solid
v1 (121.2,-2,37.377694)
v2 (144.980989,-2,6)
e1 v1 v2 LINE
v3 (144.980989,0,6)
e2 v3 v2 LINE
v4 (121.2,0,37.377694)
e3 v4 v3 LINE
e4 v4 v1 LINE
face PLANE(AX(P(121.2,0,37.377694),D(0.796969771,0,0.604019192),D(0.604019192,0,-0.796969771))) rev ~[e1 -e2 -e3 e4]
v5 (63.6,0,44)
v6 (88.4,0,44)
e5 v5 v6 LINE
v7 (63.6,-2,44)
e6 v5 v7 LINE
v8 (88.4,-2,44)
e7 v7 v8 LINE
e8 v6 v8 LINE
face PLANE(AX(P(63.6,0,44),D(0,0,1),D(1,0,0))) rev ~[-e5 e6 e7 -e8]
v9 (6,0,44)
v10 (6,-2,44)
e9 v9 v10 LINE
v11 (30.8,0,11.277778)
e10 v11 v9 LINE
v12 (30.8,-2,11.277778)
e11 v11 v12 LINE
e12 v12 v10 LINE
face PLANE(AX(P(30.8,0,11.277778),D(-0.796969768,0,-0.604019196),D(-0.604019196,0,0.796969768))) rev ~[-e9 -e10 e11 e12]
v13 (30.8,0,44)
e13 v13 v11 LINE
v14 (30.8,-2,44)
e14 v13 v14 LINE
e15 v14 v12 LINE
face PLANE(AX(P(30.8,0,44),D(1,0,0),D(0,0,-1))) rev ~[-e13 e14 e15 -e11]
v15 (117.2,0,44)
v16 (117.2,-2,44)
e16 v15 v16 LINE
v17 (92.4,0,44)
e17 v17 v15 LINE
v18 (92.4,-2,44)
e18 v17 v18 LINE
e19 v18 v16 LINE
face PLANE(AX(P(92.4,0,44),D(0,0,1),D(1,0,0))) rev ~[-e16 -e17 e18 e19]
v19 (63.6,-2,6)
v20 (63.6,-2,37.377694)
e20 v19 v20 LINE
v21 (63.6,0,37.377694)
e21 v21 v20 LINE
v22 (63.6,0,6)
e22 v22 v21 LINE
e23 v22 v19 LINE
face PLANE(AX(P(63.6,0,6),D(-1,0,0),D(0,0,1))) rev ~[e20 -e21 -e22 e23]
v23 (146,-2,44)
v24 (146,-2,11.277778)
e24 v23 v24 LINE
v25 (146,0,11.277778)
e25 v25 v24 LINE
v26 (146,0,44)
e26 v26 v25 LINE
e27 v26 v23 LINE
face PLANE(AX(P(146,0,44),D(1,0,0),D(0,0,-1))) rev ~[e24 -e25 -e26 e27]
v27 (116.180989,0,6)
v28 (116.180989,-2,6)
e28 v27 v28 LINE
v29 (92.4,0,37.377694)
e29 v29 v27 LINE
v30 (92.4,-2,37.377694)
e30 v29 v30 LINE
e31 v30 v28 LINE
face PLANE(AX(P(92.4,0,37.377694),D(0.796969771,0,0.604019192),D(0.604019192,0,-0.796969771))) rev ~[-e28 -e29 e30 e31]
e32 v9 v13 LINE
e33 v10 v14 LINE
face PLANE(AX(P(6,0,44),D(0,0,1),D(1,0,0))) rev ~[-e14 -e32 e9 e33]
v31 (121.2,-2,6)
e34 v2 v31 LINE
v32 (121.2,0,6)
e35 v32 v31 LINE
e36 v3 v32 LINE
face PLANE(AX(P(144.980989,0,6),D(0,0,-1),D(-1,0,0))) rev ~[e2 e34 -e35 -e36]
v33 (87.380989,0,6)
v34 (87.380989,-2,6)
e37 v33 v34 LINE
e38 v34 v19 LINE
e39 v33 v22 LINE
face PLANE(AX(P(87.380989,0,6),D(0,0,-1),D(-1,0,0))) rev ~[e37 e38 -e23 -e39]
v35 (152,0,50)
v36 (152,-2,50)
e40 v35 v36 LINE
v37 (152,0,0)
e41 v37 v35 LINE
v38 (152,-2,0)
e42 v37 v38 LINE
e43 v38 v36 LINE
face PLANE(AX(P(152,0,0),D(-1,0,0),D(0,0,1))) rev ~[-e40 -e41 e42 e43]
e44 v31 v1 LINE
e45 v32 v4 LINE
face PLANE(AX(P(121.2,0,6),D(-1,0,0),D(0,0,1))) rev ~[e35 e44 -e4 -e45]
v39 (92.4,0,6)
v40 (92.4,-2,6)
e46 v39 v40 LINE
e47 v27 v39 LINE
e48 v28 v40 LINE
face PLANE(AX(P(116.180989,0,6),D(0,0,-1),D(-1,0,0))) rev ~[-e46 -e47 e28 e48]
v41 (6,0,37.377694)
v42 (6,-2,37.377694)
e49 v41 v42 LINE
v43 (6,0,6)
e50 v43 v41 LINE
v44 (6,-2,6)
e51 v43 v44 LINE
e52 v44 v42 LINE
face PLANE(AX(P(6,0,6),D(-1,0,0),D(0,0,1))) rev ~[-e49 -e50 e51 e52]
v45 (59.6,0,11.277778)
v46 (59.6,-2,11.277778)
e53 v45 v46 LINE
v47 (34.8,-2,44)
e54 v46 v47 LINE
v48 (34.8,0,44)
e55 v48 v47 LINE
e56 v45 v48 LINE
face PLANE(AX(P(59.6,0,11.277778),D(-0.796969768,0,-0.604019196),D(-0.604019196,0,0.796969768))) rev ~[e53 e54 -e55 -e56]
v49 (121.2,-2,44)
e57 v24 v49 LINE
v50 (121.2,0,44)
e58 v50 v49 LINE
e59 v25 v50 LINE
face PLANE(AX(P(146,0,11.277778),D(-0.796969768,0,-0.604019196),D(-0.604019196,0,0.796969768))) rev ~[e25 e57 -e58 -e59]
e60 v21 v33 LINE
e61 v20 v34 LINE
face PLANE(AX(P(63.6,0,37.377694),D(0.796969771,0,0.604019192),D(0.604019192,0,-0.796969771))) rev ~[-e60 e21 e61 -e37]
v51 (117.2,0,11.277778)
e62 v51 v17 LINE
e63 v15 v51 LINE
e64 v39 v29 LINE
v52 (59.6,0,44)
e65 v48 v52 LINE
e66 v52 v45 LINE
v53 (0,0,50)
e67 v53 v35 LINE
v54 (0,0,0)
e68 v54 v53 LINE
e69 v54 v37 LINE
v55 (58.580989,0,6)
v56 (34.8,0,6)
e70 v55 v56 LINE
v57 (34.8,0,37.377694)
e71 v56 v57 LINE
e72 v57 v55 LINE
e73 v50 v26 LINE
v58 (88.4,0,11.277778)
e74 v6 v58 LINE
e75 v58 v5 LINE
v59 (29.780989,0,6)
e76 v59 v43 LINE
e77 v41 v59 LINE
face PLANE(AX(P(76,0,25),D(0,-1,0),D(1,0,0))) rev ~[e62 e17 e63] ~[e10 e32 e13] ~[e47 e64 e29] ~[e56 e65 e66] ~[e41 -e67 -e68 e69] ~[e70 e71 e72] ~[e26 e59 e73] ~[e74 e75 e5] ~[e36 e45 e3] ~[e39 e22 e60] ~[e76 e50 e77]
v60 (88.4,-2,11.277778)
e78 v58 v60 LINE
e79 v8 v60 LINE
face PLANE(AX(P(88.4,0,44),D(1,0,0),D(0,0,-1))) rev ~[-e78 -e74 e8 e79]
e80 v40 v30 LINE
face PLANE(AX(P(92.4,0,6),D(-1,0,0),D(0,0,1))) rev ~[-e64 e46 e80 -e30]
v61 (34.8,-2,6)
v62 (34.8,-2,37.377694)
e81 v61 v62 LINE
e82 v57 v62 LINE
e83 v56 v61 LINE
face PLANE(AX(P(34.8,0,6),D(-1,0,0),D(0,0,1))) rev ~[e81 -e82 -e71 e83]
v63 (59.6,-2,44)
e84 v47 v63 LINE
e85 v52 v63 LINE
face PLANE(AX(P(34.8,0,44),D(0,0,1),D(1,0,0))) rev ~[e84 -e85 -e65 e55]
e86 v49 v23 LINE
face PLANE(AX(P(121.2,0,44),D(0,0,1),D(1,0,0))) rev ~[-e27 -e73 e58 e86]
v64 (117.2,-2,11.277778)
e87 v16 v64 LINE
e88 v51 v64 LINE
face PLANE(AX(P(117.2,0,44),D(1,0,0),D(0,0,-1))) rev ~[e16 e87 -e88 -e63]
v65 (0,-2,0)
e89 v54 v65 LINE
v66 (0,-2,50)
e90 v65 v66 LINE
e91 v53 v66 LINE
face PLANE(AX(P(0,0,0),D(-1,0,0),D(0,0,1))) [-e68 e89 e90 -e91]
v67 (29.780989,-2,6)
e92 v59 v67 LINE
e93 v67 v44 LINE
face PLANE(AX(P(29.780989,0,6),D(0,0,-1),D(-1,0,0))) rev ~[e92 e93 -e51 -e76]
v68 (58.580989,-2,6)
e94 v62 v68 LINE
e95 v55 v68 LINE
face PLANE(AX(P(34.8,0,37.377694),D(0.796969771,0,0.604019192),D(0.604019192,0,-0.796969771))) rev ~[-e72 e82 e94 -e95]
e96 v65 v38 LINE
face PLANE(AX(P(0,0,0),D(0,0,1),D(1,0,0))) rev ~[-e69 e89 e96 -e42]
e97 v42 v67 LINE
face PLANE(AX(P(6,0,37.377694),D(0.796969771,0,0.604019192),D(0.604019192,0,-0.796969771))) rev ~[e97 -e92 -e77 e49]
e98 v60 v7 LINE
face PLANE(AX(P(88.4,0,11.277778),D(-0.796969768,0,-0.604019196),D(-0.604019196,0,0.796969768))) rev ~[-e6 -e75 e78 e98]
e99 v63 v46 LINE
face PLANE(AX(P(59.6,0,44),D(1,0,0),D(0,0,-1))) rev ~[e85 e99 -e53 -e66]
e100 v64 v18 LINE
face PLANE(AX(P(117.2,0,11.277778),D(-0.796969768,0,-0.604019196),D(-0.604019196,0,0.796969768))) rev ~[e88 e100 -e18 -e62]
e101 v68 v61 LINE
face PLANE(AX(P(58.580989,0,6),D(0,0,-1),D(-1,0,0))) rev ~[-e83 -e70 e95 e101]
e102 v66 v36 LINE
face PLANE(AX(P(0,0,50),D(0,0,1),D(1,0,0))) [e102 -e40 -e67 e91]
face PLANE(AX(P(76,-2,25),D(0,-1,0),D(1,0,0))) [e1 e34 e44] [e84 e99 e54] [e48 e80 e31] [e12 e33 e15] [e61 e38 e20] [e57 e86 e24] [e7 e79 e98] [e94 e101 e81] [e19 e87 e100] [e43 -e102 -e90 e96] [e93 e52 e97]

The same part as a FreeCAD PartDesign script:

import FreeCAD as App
import Part
import Sketcher


def add_polygon(sketch, points):
    """Adds a closed chain of lines whose ends are joined by coincident constraints."""
    first, n = sketch.GeometryCount, len(points)
    for a, b in zip(points, points[1:] + points[:1]):
        sketch.addGeometry(Part.LineSegment(App.Vector(*a, 0), App.Vector(*b, 0)), False)
    for i in range(n):
        sketch.addConstraint(Sketcher.Constraint("Coincident", first + i, 2, first + (i + 1) % n, 1))

doc = App.newDocument("Part")
params = doc.addObject("Spreadsheet::Sheet", "Params")
for row, (alias, value) in enumerate([
    ("sketch1_width", "152 mm"),
    ("sketch1_height", "50 mm"),
    ("sketch1_width2", "24.8 mm"),
    ("pad1_length", "2 mm"),
], start=1):
    params.set(f"A{row}", alias)
    params.set(f"B{row}", "=" + value)
    params.setAlias(f"B{row}", alias)

body = doc.addObject("PartDesign::Body", "Body")

# Sketch on XZ plane
sketch1 = doc.addObject("Sketcher::SketchObject", "Sketch")
body.addObject(sketch1)
sketch1.AttachmentSupport = (doc.XZ_Plane, [""])
sketch1.MapMode = "FlatFace"
add_polygon(sketch1, [(0, 50), (0, 0), (152, 0), (152, 50)])  # lines 0-3
add_polygon(sketch1, [(30.8, 44), (30.8, 11.277778), (6, 44)])  # lines 4-6
add_polygon(sketch1, [(6, 6), (6, 37.377694), (29.780989, 6)])  # lines 7-9
add_polygon(sketch1, [(58.580989, 6), (34.8, 6), (34.8, 37.377694)])  # lines 10-12
add_polygon(sketch1, [(87.380989, 6), (63.6, 6), (63.6, 37.377694)])  # lines 13-15
add_polygon(sketch1, [(116.180989, 6), (92.4, 6), (92.4, 37.377694)])  # lines 16-18
add_polygon(sketch1, [(144.980989, 6), (121.2, 6), (121.2, 37.377694)])  # lines 19-21
add_polygon(sketch1, [(59.6, 11.277778), (34.8, 44), (59.6, 44)])  # lines 22-24
add_polygon(sketch1, [(88.4, 11.277778), (63.6, 44), (88.4, 44)])  # lines 25-27
add_polygon(sketch1, [(117.2, 11.277778), (92.4, 44), (117.2, 44)])  # lines 28-30
add_polygon(sketch1, [(146, 11.277778), (121.2, 44), (146, 44)])  # lines 31-33
sketch1.addConstraint([
    Sketcher.Constraint("Vertical", 0),
    Sketcher.Constraint("Horizontal", 1),
    Sketcher.Constraint("Vertical", 2),
    Sketcher.Constraint("Horizontal", 3),
    Sketcher.Constraint("Vertical", 4),
    Sketcher.Constraint("Horizontal", 6),
    Sketcher.Constraint("Vertical", 7),
    Sketcher.Constraint("Horizontal", 9),
    Sketcher.Constraint("Horizontal", 10),
    Sketcher.Constraint("Vertical", 11),
    Sketcher.Constraint("Horizontal", 13),
    Sketcher.Constraint("Vertical", 14),
    Sketcher.Constraint("Horizontal", 16),
    Sketcher.Constraint("Vertical", 17),
    Sketcher.Constraint("Horizontal", 19),
    Sketcher.Constraint("Vertical", 20),
    Sketcher.Constraint("Horizontal", 23),
    Sketcher.Constraint("Vertical", 24),
    Sketcher.Constraint("Horizontal", 26),
    Sketcher.Constraint("Vertical", 27),
    Sketcher.Constraint("Horizontal", 29),
    Sketcher.Constraint("Vertical", 30),
    Sketcher.Constraint("Horizontal", 32),
    Sketcher.Constraint("Vertical", 33),
    Sketcher.Constraint("Coincident", 0, 2, -1, 1),
    Sketcher.Constraint("Parallel", 5, 8),
    Sketcher.Constraint("Parallel", 8, 12),
    Sketcher.Constraint("Parallel", 12, 15),
    Sketcher.Constraint("Parallel", 15, 18),
    Sketcher.Constraint("Parallel", 18, 21),
    Sketcher.Constraint("Parallel", 21, 22),
    Sketcher.Constraint("Parallel", 22, 25),
    Sketcher.Constraint("Parallel", 25, 28),
    Sketcher.Constraint("Parallel", 28, 31),
    Sketcher.Constraint("Horizontal", 9, 2, 10, 2),
    Sketcher.Constraint("Horizontal", 7, 2, 11, 2),
    Sketcher.Constraint("Horizontal", 12, 2, 13, 2),
    Sketcher.Constraint("Horizontal", 11, 2, 14, 2),
    Sketcher.Constraint("Horizontal", 15, 2, 16, 2),
    Sketcher.Constraint("Horizontal", 14, 2, 17, 2),
    Sketcher.Constraint("Horizontal", 18, 2, 19, 2),
    Sketcher.Constraint("Horizontal", 17, 2, 20, 2),
    Sketcher.Constraint("Horizontal", 6, 2, 22, 2),
    Sketcher.Constraint("Horizontal", 4, 2, 24, 2),
    Sketcher.Constraint("Horizontal", 23, 2, 25, 2),
    Sketcher.Constraint("Horizontal", 24, 2, 27, 2),
    Sketcher.Constraint("Horizontal", 26, 2, 28, 2),
    Sketcher.Constraint("Horizontal", 27, 2, 30, 2),
    Sketcher.Constraint("Horizontal", 29, 2, 31, 2),
    Sketcher.Constraint("Horizontal", 30, 2, 33, 2),
    Sketcher.Constraint("Vertical", 5, 2, 7, 2),
    Sketcher.Constraint("Vertical", 11, 2, 22, 2),
    Sketcher.Constraint("Vertical", 14, 2, 25, 2),
    Sketcher.Constraint("Vertical", 17, 2, 28, 2),
    Sketcher.Constraint("Vertical", 20, 2, 31, 2),
    Sketcher.Constraint("DistanceX", 1, 1, 1, 2, 152.0),
    Sketcher.Constraint("DistanceY", 0, 2, 0, 1, 50.0),
    Sketcher.Constraint("DistanceX", 6, 1, 6, 2, 24.8),
    Sketcher.Constraint("DistanceX", -1, 1, 5, 2, 6.0),
    Sketcher.Constraint("DistanceY", -1, 1, 5, 2, 44.0),
    Sketcher.Constraint("DistanceY", -1, 1, 8, 2, 6.0),
    Sketcher.Constraint("DistanceX", -1, 1, 32, 2, 146.0),
    Sketcher.Constraint("DistanceX", 4, 2, 10, 2, 4.0),
    Sketcher.Constraint("DistanceX", 23, 2, 14, 2, 4.0),
    Sketcher.Constraint("DistanceX", 26, 2, 17, 2, 4.0),
    Sketcher.Constraint("DistanceX", 9, 2, 9, 1, 23.780989),
    Sketcher.Constraint("DistanceY", 4, 2, 4, 1, 32.722222),
])
sketch1.setExpression("Constraints[89]", "Params.sketch1_width")
sketch1.setExpression("Constraints[90]", "Params.sketch1_height")
sketch1.setExpression("Constraints[91]", "Params.sketch1_width2")
pad1 = doc.addObject("PartDesign::Pad", "Pad")
body.addObject(pad1)
pad1.Profile = sketch1
pad1.setExpression("Length", "Params.pad1_length")

doc.recompute()
